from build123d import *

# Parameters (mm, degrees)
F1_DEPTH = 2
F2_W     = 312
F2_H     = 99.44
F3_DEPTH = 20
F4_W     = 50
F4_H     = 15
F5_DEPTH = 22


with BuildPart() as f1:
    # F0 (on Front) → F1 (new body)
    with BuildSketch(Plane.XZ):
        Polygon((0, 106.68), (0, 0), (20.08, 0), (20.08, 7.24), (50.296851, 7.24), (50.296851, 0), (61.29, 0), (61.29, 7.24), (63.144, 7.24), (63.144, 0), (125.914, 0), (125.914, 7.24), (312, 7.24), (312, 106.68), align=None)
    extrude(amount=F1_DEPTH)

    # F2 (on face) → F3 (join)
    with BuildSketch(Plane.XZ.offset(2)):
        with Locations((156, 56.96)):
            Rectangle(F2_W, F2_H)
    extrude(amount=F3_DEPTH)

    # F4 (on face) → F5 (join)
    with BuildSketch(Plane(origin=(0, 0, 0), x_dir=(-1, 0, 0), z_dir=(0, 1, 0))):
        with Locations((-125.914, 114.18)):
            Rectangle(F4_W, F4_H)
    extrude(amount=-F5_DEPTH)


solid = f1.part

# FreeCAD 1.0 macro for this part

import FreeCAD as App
import Part
import Sketcher
from FreeCAD import Vector

doc = App.newDocument("Part")
body = doc.addObject("PartDesign::Body", "Body")

# Sketch on XZ plane
sketch1 = body.newObject("Sketcher::SketchObject", "Sketch")
sketch1.AttachmentSupport = (doc.getObject("XZ_Plane"), [""])
sketch1.MapMode = "FlatFace"
sketch1.addGeometry(Part.LineSegment(Vector(0, 106.7, 0), Vector(0, 0, 0)), False)
sketch1.addGeometry(Part.LineSegment(Vector(0, 0, 0), Vector(20.1, 0, 0)), False)
sketch1.addGeometry(Part.LineSegment(Vector(20.1, 0, 0), Vector(20.1, 7.2, 0)), False)
sketch1.addGeometry(Part.LineSegment(Vector(20.1, 7.2, 0), Vector(50.3, 7.2, 0)), False)
sketch1.addGeometry(Part.LineSegment(Vector(50.3, 7.2, 0), Vector(50.3, 0, 0)), False)
sketch1.addGeometry(Part.LineSegment(Vector(50.3, 0, 0), Vector(61.3, 0, 0)), False)
sketch1.addGeometry(Part.LineSegment(Vector(61.3, 0, 0), Vector(61.3, 7.2, 0)), False)
sketch1.addGeometry(Part.LineSegment(Vector(61.3, 7.2, 0), Vector(63.1, 7.2, 0)), False)
sketch1.addGeometry(Part.LineSegment(Vector(63.1, 7.2, 0), Vector(63.1, 0, 0)), False)
sketch1.addGeometry(Part.LineSegment(Vector(63.1, 0, 0), Vector(125.9, 0, 0)), False)
sketch1.addGeometry(Part.LineSegment(Vector(125.9, 0, 0), Vector(125.9, 7.2, 0)), False)
sketch1.addGeometry(Part.LineSegment(Vector(125.9, 7.2, 0), Vector(312, 7.2, 0)), False)
sketch1.addGeometry(Part.LineSegment(Vector(312, 7.2, 0), Vector(312, 106.7, 0)), False)
sketch1.addGeometry(Part.LineSegment(Vector(312, 106.7, 0), Vector(0, 106.7, 0)), False)
sketch1.addConstraint(Sketcher.Constraint("Coincident", 0, 2, 1, 1))
sketch1.addConstraint(Sketcher.Constraint("Coincident", 1, 2, 2, 1))
sketch1.addConstraint(Sketcher.Constraint("Coincident", 2, 2, 3, 1))
sketch1.addConstraint(Sketcher.Constraint("Coincident", 3, 2, 4, 1))
sketch1.addConstraint(Sketcher.Constraint("Coincident", 4, 2, 5, 1))
sketch1.addConstraint(Sketcher.Constraint("Coincident", 5, 2, 6, 1))
sketch1.addConstraint(Sketcher.Constraint("Coincident", 6, 2, 7, 1))
sketch1.addConstraint(Sketcher.Constraint("Coincident", 7, 2, 8, 1))
sketch1.addConstraint(Sketcher.Constraint("Coincident", 8, 2, 9, 1))
sketch1.addConstraint(Sketcher.Constraint("Coincident", 9, 2, 10, 1))
sketch1.addConstraint(Sketcher.Constraint("Coincident", 10, 2, 11, 1))
sketch1.addConstraint(Sketcher.Constraint("Coincident", 11, 2, 12, 1))
sketch1.addConstraint(Sketcher.Constraint("Coincident", 12, 2, 13, 1))
sketch1.addConstraint(Sketcher.Constraint("Coincident", 13, 2, 0, 1))
sketch1.addConstraint(Sketcher.Constraint("Vertical", 0))
sketch1.addConstraint(Sketcher.Constraint("Horizontal", 1))
sketch1.addConstraint(Sketcher.Constraint("Vertical", 2))
sketch1.addConstraint(Sketcher.Constraint("Horizontal", 3))
sketch1.addConstraint(Sketcher.Constraint("Vertical", 4))
sketch1.addConstraint(Sketcher.Constraint("Horizontal", 5))
sketch1.addConstraint(Sketcher.Constraint("Vertical", 6))
sketch1.addConstraint(Sketcher.Constraint("Horizontal", 7))
sketch1.addConstraint(Sketcher.Constraint("Vertical", 8))
sketch1.addConstraint(Sketcher.Constraint("Horizontal", 9))
sketch1.addConstraint(Sketcher.Constraint("Vertical", 10))
sketch1.addConstraint(Sketcher.Constraint("Horizontal", 11))
sketch1.addConstraint(Sketcher.Constraint("Vertical", 12))
sketch1.addConstraint(Sketcher.Constraint("Horizontal", 13))
sketch1.addConstraint(Sketcher.Constraint("Coincident", 0, 2, -1, 1))
sketch1.addConstraint(Sketcher.Constraint("PointOnObject", 4, 2, -1))
sketch1.addConstraint(Sketcher.Constraint("PointOnObject", 8, 2, -1))
sketch1.addConstraint(Sketcher.Constraint("Horizontal", 3, 2, 6, 2))
sketch1.addConstraint(Sketcher.Constraint("Horizontal", 7, 2, 10, 2))
sketch1.addConstraint(Sketcher.Constraint("DistanceX", 13, 2, 13, 1, 312.0))
sketch1.addConstraint(Sketcher.Constraint("DistanceX", 1, 1, 1, 2, 20.08))
sketch1.addConstraint(Sketcher.Constraint("DistanceX", 9, 1, 9, 2, 62.77))
sketch1.addConstraint(Sketcher.Constraint("DistanceY", 0, 2, 0, 1, 106.68))
sketch1.addConstraint(Sketcher.Constraint("DistanceY", 2, 1, 2, 2, 7.24))
sketch1.addConstraint(Sketcher.Constraint("DistanceX", 7, 1, 7, 2, 1.854))
sketch1.addConstraint(Sketcher.Constraint("DistanceX", 11, 1, 11, 2, 186.086))
sketch1.addConstraint(Sketcher.Constraint("DistanceX", 3, 1, 3, 2, 30.216851))
pad1 = body.newObject("PartDesign::Pad", "Pad")
pad1.Profile = sketch1
pad1.Length = 2

# Sketch on XZ plane
sketch2 = body.newObject("Sketcher::SketchObject", "Sketch001")
sketch2.AttachmentSupport = (doc.getObject("XZ_Plane"), [""])
sketch2.MapMode = "FlatFace"
sketch2.AttachmentOffset = App.Placement(Vector(0, 0, 2), App.Rotation())
sketch2.addGeometry(Part.LineSegment(Vector(0, 107, 0), Vector(0, 7, 0)), False)
sketch2.addGeometry(Part.LineSegment(Vector(0, 7, 0), Vector(312, 7, 0)), False)
sketch2.addGeometry(Part.LineSegment(Vector(312, 7, 0), Vector(312, 107, 0)), False)
sketch2.addGeometry(Part.LineSegment(Vector(312, 107, 0), Vector(0, 107, 0)), False)
sketch2.addConstraint(Sketcher.Constraint("Coincident", 0, 2, 1, 1))
sketch2.addConstraint(Sketcher.Constraint("Coincident", 1, 2, 2, 1))
sketch2.addConstraint(Sketcher.Constraint("Coincident", 2, 2, 3, 1))
sketch2.addConstraint(Sketcher.Constraint("Coincident", 3, 2, 0, 1))
sketch2.addConstraint(Sketcher.Constraint("Vertical", 0))
sketch2.addConstraint(Sketcher.Constraint("Horizontal", 1))
sketch2.addConstraint(Sketcher.Constraint("Vertical", 2))
sketch2.addConstraint(Sketcher.Constraint("Horizontal", 3))
sketch2.addConstraint(Sketcher.Constraint("PointOnObject", 0, 2, -2))
sketch2.addConstraint(Sketcher.Constraint("DistanceX", 1, 1, 1, 2, 312.0))
sketch2.addConstraint(Sketcher.Constraint("DistanceY", 0, 2, 0, 1, 99.44))
sketch2.addConstraint(Sketcher.Constraint("DistanceY", -1, 1, 0, 2, 7.24))
pad2 = body.newObject("PartDesign::Pad", "Pad001")
pad2.Profile = sketch2
pad2.Length = 20

# Sketch on XZ plane
sketch3 = body.newObject("Sketcher::SketchObject", "Sketch002")
sketch3.AttachmentSupport = (doc.getObject("XZ_Plane"), [""])
sketch3.MapMode = "FlatFace"
sketch3.addGeometry(Part.LineSegment(Vector(151, 122, 0), Vector(151, 107, 0)), False)
sketch3.addGeometry(Part.LineSegment(Vector(151, 107, 0), Vector(101, 107, 0)), False)
sketch3.addGeometry(Part.LineSegment(Vector(101, 107, 0), Vector(101, 122, 0)), False)
sketch3.addGeometry(Part.LineSegment(Vector(101, 122, 0), Vector(151, 122, 0)), False)
sketch3.addConstraint(Sketcher.Constraint("Coincident", 0, 2, 1, 1))
sketch3.addConstraint(Sketcher.Constraint("Coincident", 1, 2, 2, 1))
sketch3.addConstraint(Sketcher.Constraint("Coincident", 2, 2, 3, 1))
sketch3.addConstraint(Sketcher.Constraint("Coincident", 3, 2, 0, 1))
sketch3.addConstraint(Sketcher.Constraint("Vertical", 0))
sketch3.addConstraint(Sketcher.Constraint("Horizontal", 1))
sketch3.addConstraint(Sketcher.Constraint("Vertical", 2))
sketch3.addConstraint(Sketcher.Constraint("Horizontal", 3))
sketch3.addConstraint(Sketcher.Constraint("DistanceX", 1, 2, 1, 1, 50.0))
sketch3.addConstraint(Sketcher.Constraint("DistanceY", 0, 2, 0, 1, 15.0))
sketch3.addConstraint(Sketcher.Constraint("DistanceY", -1, 1, 0, 2, 106.68))
sketch3.addConstraint(Sketcher.Constraint("DistanceX", -1, 1, 0, 2, 150.914))
pad3 = body.newObject("PartDesign::Pad", "Pad002")
pad3.Profile = sketch3
pad3.Length = 22

doc.recompute()
